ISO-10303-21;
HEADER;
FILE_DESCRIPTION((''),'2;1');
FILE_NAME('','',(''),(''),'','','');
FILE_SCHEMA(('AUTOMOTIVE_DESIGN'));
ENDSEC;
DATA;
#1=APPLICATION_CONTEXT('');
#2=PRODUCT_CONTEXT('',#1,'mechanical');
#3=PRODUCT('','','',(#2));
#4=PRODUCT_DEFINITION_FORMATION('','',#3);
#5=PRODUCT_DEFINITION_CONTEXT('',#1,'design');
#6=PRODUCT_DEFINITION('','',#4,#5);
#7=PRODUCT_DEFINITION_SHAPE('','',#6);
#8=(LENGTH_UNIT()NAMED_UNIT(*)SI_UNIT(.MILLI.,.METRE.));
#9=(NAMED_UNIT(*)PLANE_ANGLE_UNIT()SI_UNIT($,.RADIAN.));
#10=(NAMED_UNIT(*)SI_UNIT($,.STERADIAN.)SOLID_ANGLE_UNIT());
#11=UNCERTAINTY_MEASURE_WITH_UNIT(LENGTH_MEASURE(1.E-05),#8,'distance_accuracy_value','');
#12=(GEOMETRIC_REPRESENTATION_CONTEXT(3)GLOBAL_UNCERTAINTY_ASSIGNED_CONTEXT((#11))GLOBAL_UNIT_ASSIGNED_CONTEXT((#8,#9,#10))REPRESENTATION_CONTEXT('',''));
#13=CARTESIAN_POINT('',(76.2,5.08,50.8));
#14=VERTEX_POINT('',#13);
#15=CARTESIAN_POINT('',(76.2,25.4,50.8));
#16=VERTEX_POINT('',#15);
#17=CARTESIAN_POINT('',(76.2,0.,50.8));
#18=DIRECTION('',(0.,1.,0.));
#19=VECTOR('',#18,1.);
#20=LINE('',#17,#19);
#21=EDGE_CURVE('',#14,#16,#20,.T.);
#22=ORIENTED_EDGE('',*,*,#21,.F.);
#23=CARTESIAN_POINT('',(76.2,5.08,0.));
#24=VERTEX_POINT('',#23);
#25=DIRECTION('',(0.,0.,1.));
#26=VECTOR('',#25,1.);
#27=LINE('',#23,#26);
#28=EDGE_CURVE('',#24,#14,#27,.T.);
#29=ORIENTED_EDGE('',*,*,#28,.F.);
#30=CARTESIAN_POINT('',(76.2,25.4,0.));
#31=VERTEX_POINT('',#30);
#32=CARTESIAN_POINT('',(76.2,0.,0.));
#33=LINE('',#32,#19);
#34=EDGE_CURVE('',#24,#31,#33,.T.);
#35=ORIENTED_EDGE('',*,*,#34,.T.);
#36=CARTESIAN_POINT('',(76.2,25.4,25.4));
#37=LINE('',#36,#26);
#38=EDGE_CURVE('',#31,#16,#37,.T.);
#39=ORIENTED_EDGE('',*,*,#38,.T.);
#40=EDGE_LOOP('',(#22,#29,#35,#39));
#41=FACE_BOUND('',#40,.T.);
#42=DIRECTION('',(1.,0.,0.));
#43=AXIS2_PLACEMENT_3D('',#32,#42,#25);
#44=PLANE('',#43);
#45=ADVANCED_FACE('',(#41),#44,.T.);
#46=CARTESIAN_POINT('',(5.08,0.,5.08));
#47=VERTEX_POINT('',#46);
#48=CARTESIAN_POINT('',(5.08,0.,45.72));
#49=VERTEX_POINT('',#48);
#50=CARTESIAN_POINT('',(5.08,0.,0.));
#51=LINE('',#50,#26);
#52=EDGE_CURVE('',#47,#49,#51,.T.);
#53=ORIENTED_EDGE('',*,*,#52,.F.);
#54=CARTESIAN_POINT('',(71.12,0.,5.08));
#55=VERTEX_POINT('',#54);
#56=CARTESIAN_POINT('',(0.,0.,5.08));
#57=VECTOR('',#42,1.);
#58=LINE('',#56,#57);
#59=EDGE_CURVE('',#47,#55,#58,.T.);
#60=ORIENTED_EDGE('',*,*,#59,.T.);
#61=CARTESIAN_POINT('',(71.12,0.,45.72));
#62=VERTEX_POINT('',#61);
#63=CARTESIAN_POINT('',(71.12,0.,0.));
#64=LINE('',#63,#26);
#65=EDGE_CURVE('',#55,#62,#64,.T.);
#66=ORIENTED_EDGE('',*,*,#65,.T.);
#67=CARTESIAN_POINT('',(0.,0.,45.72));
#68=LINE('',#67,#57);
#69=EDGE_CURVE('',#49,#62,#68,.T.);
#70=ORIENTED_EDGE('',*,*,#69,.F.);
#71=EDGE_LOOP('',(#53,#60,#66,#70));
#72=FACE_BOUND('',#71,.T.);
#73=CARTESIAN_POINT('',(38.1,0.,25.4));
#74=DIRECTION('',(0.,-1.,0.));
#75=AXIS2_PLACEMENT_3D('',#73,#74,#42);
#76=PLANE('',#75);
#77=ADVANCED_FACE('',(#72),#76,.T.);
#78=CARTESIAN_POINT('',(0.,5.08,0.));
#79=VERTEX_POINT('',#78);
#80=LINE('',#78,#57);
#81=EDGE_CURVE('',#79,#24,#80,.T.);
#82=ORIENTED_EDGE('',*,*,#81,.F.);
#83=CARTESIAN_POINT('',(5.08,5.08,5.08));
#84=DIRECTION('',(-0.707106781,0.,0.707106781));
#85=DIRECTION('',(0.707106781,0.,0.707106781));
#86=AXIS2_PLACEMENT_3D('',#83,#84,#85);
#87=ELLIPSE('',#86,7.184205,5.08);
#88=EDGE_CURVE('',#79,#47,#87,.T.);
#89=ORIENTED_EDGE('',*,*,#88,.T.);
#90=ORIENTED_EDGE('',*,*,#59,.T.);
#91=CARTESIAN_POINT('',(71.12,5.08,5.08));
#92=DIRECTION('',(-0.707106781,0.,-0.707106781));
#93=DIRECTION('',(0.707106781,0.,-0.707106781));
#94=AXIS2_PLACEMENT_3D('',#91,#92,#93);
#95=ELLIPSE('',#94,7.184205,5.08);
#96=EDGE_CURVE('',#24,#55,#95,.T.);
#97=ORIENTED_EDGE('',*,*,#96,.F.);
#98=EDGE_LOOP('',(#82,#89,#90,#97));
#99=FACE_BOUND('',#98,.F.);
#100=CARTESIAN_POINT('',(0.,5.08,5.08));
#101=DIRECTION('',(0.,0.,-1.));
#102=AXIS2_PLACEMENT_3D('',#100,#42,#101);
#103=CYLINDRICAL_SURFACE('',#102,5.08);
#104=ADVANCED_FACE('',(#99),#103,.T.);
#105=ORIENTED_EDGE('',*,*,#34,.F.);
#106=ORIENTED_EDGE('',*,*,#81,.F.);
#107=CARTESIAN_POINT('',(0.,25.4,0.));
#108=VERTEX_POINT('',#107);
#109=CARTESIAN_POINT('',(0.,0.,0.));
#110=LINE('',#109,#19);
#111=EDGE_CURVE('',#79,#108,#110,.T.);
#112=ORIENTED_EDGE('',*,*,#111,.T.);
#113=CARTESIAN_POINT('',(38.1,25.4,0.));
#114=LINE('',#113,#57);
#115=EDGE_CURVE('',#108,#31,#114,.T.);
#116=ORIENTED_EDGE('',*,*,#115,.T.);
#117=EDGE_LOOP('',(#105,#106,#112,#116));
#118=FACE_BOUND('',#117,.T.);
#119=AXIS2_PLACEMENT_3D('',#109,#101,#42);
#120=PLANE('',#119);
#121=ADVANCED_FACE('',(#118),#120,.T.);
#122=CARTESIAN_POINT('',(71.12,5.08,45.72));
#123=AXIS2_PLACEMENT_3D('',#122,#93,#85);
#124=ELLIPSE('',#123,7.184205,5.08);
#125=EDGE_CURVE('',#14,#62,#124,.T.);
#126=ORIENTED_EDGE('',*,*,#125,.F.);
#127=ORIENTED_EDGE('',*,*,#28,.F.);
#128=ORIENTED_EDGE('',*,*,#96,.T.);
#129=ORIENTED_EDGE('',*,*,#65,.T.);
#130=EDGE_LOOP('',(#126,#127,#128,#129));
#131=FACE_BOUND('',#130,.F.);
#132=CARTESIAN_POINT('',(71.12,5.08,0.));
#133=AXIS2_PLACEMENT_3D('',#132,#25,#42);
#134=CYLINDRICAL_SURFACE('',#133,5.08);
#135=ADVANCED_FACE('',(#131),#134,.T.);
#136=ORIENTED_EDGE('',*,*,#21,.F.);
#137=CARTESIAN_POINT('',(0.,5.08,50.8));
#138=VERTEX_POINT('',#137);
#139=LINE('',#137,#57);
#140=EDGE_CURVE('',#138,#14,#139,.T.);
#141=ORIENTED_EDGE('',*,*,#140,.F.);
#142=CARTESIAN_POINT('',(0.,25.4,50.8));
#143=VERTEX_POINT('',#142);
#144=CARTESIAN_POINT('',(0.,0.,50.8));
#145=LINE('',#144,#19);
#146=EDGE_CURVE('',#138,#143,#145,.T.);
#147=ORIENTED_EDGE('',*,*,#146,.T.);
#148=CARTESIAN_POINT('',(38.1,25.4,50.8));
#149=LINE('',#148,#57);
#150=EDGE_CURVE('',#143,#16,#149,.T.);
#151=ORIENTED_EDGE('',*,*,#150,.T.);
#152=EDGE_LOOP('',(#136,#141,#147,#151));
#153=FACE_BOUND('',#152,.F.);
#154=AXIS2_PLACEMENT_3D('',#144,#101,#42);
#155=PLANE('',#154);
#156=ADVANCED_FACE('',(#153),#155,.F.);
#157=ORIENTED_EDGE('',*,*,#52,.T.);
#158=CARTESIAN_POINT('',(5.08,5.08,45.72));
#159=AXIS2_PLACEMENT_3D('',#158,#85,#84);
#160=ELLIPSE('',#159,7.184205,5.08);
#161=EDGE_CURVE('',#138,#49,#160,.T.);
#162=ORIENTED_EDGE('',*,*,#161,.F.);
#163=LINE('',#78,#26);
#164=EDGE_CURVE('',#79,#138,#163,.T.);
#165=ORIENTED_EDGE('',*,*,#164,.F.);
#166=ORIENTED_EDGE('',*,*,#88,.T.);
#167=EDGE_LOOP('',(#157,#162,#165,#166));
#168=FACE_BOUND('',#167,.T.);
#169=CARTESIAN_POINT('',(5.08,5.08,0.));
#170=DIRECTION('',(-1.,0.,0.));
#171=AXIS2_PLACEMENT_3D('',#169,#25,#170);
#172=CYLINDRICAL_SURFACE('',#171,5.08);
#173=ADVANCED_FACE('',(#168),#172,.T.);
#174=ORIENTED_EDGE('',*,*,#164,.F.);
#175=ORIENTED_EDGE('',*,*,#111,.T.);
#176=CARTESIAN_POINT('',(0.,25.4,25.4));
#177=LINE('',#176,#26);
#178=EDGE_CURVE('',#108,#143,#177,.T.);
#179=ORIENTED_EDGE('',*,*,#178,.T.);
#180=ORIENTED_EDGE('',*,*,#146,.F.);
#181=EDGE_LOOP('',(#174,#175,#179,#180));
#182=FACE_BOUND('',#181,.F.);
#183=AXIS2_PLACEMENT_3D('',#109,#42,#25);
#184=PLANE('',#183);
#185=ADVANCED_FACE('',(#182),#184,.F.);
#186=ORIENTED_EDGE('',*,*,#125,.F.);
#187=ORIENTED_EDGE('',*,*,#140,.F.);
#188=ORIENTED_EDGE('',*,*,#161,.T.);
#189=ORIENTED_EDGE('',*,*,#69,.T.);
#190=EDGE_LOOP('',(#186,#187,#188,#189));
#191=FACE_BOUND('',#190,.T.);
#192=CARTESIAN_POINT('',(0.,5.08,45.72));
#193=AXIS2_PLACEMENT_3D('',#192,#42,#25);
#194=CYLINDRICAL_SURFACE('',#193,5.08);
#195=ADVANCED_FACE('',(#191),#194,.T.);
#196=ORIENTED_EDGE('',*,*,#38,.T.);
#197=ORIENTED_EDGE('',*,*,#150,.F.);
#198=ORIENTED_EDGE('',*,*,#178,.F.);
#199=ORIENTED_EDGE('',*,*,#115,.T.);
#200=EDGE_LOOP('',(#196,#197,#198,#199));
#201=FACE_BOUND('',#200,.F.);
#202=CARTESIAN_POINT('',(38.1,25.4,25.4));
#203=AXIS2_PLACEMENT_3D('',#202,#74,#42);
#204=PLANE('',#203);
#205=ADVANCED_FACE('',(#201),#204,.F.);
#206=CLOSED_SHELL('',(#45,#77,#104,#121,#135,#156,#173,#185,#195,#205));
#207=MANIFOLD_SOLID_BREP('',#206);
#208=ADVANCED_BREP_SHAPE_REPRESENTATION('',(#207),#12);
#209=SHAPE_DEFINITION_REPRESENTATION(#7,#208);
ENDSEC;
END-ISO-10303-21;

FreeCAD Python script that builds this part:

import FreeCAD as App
import Part
import Sketcher

V = App.Vector
Q = App.Units.Quantity


def edges_at(feature, points):
    """Names of the edges that pass closest to the given points."""
    edges = feature.Shape.Edges
    near = lambda p: min(range(len(edges)), key=lambda i: edges[i].distToShape(Part.Vertex(*p))[0])
    return sorted({f"Edge{near(p) + 1}" for p in points})

doc = App.newDocument("Part")
params = doc.addObject("Spreadsheet::Sheet", "Params")
for row, (alias, value) in enumerate([
    ("sketch1_width", "3 in"),
    ("sketch1_height", "2 in"),
    ("pad1_length", "1 in"),
    ("fillet_radius", "0.2 in"),
], start=1):
    params.set(f"A{row}", alias)
    params.set(f"B{row}", "=" + value)
    params.setAlias(f"B{row}", alias)

body = doc.addObject("PartDesign::Body", "Body")

sketch1 = body.newObject("Sketcher::SketchObject", "Sketch")
sketch1.AttachmentSupport = (doc.getObject("XZ_Plane"), [""])
sketch1.MapMode = "FlatFace"
sketch1.addGeometry(Part.LineSegment(V(0, 51, 0), V(0, 0, 0)), False)
sketch1.addGeometry(Part.LineSegment(V(0, 0, 0), V(76, 0, 0)), False)
sketch1.addGeometry(Part.LineSegment(V(76, 0, 0), V(76, 51, 0)), False)
sketch1.addGeometry(Part.LineSegment(V(76, 51, 0), V(0, 51, 0)), False)
sketch1.addConstraint(Sketcher.Constraint("Coincident", 0, 2, 1, 1))
sketch1.addConstraint(Sketcher.Constraint("Coincident", 1, 2, 2, 1))
sketch1.addConstraint(Sketcher.Constraint("Coincident", 2, 2, 3, 1))
sketch1.addConstraint(Sketcher.Constraint("Coincident", 3, 2, 0, 1))
sketch1.addConstraint(Sketcher.Constraint("Vertical", 0))
sketch1.addConstraint(Sketcher.Constraint("Horizontal", 1))
sketch1.addConstraint(Sketcher.Constraint("Vertical", 2))
sketch1.addConstraint(Sketcher.Constraint("Horizontal", 3))
sketch1.addConstraint(Sketcher.Constraint("Coincident", 0, 2, -1, 1))
sketch1.addConstraint(Sketcher.Constraint("DistanceX", 1, 1, 1, 2, Q("3 in")))
sketch1.addConstraint(Sketcher.Constraint("DistanceY", 0, 2, 0, 1, Q("2 in")))
sketch1.setExpression("Constraints[9]", "Params.sketch1_width")
sketch1.setExpression("Constraints[10]", "Params.sketch1_height")
pad1 = body.newObject("PartDesign::Pad", "Pad")
pad1.Profile = sketch1
pad1.setExpression("Length", "Params.pad1_length")
pad1.Reversed = True
doc.recompute()

fillet = body.newObject("PartDesign::Fillet", "Fillet")
fillet.Base = (pad1, edges_at(pad1, [
    (0, 0, 25.4),
    (38.1, 0, 0),
    (76.2, 0, 25.4),
    (38.1, 0, 50.8),
]))
fillet.setExpression("Radius", "Params.fillet_radius")

doc.recompute()
